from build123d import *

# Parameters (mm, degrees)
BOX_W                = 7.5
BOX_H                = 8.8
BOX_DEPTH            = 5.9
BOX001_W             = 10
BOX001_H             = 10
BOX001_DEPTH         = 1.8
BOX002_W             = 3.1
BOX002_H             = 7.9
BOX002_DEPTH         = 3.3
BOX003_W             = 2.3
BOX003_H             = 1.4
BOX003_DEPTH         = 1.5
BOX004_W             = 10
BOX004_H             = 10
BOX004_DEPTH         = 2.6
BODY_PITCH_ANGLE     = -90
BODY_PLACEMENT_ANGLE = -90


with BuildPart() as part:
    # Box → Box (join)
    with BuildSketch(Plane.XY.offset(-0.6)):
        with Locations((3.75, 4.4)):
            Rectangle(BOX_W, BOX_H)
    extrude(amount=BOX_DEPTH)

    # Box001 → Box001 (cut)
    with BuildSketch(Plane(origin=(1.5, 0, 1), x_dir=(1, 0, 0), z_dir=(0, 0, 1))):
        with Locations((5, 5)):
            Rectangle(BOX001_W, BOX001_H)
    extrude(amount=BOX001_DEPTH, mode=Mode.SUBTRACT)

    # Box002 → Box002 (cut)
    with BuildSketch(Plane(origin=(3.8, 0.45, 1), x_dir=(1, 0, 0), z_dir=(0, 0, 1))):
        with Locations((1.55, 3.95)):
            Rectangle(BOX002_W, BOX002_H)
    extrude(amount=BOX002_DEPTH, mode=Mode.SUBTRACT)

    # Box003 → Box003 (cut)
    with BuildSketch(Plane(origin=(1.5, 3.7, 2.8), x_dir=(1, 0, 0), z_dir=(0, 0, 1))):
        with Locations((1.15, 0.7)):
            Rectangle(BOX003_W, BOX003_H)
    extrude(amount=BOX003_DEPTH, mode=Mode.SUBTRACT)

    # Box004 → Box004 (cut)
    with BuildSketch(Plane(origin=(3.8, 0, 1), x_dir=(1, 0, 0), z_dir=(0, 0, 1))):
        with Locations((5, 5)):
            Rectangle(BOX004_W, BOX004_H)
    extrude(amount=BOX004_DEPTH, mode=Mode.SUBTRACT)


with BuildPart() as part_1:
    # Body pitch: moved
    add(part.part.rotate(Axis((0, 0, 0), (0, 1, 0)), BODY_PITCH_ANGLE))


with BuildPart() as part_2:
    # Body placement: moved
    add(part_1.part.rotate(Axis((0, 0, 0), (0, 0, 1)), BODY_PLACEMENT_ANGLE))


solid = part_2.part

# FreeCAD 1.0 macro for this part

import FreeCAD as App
import Part
import Sketcher
Q = App.Units.Quantity


def add_polygon(sketch, points):
    """Adds a closed chain of lines whose ends are joined by coincident constraints."""
    first, n = sketch.GeometryCount, len(points)
    for a, b in zip(points, points[1:] + points[:1]):
        sketch.addGeometry(Part.LineSegment(App.Vector(*a, 0), App.Vector(*b, 0)), False)
    for i in range(n):
        sketch.addConstraint(Sketcher.Constraint("Coincident", first + i, 2, first + (i + 1) % n, 1))

doc = App.newDocument("Part")
params = doc.addObject("Spreadsheet::Sheet", "Params")
for row, (alias, value) in enumerate([
    ("sketch1_width", "7.5 mm"),
    ("sketch1_height", "8.8 mm"),
    ("pad1_length", "5.9 mm"),
    ("sketch2_width", "10 mm"),
    ("pocket1_length", "1.8 mm"),
    ("sketch3_width", "3.1 mm"),
    ("sketch3_height", "7.9 mm"),
    ("pocket2_length", "3.3 mm"),
    ("sketch4_width", "2.3 mm"),
    ("sketch4_height", "1.4 mm"),
    ("pocket3_length", "1.5 mm"),
    ("sketch5_width", "10 mm"),
    ("pocket4_length", "2.6 mm"),
], start=1):
    params.set(f"A{row}", alias)
    params.set(f"B{row}", "=" + value)
    params.setAlias(f"B{row}", alias)

body = doc.addObject("PartDesign::Body", "Body")

sketch1 = body.newObject("Sketcher::SketchObject", "Sketch")
sketch1.AttachmentSupport = (doc.getObject("XY_Plane"), [""])
sketch1.MapMode = "FlatFace"
sketch1.AttachmentOffset = App.Placement(App.Vector(0, 0, -0.6), App.Rotation())
add_polygon(sketch1, [(0, 9), (0, 0), (8, 0), (8, 9)])
sketch1.addConstraint(Sketcher.Constraint("Vertical", 0))
sketch1.addConstraint(Sketcher.Constraint("Horizontal", 1))
sketch1.addConstraint(Sketcher.Constraint("Vertical", 2))
sketch1.addConstraint(Sketcher.Constraint("Horizontal", 3))
sketch1.addConstraint(Sketcher.Constraint("Coincident", 0, 2, -1, 1))
sketch1.addConstraint(Sketcher.Constraint("DistanceX", 1, 1, 1, 2, Q("7.5 mm")))
sketch1.addConstraint(Sketcher.Constraint("DistanceY", 0, 2, 0, 1, Q("8.8 mm")))
sketch1.setExpression("Constraints[9]", "Params.sketch1_width")
sketch1.setExpression("Constraints[10]", "Params.sketch1_height")
pad1 = body.newObject("PartDesign::Pad", "Pad")
pad1.Profile = sketch1
pad1.setExpression("Length", "Params.pad1_length")

sketch2 = body.newObject("Sketcher::SketchObject", "Sketch001")
sketch2.AttachmentSupport = (doc.getObject("XY_Plane"), [""])
sketch2.MapMode = "FlatFace"
sketch2.AttachmentOffset = App.Placement(App.Vector(0, 0, 1), App.Rotation())
add_polygon(sketch2, [(2, 10), (2, 0), (12, 0), (12, 10)])
sketch2.addConstraint(Sketcher.Constraint("Vertical", 0))
sketch2.addConstraint(Sketcher.Constraint("Horizontal", 1))
sketch2.addConstraint(Sketcher.Constraint("Vertical", 2))
sketch2.addConstraint(Sketcher.Constraint("Horizontal", 3))
sketch2.addConstraint(Sketcher.Constraint("PointOnObject", 0, 2, -1))
sketch2.addConstraint(Sketcher.Constraint("Equal", 3, 0))
sketch2.addConstraint(Sketcher.Constraint("DistanceX", 1, 1, 1, 2, Q("10 mm")))
sketch2.addConstraint(Sketcher.Constraint("DistanceX", -1, 1, 0, 2, Q("1.5 mm")))
sketch2.setExpression("Constraints[10]", "Params.sketch2_width")
pocket1 = body.newObject("PartDesign::Pocket", "Pocket")
pocket1.Profile = sketch2
pocket1.setExpression("Length", "Params.pocket1_length")
pocket1.Reversed = True

sketch3 = body.newObject("Sketcher::SketchObject", "Sketch002")
sketch3.AttachmentSupport = (doc.getObject("XY_Plane"), [""])
sketch3.MapMode = "FlatFace"
sketch3.AttachmentOffset = App.Placement(App.Vector(0, 0, 1), App.Rotation())
add_polygon(sketch3, [(3.8, 8.3), (3.8, 0.5), (6.9, 0.5), (6.9, 8.3)])
sketch3.addConstraint(Sketcher.Constraint("Vertical", 0))
sketch3.addConstraint(Sketcher.Constraint("Horizontal", 1))
sketch3.addConstraint(Sketcher.Constraint("Vertical", 2))
sketch3.addConstraint(Sketcher.Constraint("Horizontal", 3))
sketch3.addConstraint(Sketcher.Constraint("DistanceX", 1, 1, 1, 2, Q("3.1 mm")))
sketch3.addConstraint(Sketcher.Constraint("DistanceY", 0, 2, 0, 1, Q("7.9 mm")))
sketch3.addConstraint(Sketcher.Constraint("DistanceX", -1, 1, 0, 2, Q("3.8 mm")))
sketch3.addConstraint(Sketcher.Constraint("DistanceY", -1, 1, 0, 2, Q("0.45 mm")))
sketch3.setExpression("Constraints[8]", "Params.sketch3_width")
sketch3.setExpression("Constraints[9]", "Params.sketch3_height")
pocket2 = body.newObject("PartDesign::Pocket", "Pocket001")
pocket2.Profile = sketch3
pocket2.setExpression("Length", "Params.pocket2_length")
pocket2.Reversed = True

sketch4 = body.newObject("Sketcher::SketchObject", "Sketch003")
sketch4.AttachmentSupport = (doc.getObject("XY_Plane"), [""])
sketch4.MapMode = "FlatFace"
sketch4.AttachmentOffset = App.Placement(App.Vector(0, 0, 2.8), App.Rotation())
add_polygon(sketch4, [(1.5, 5.1), (1.5, 3.7), (3.8, 3.7), (3.8, 5.1)])
sketch4.addConstraint(Sketcher.Constraint("Vertical", 0))
sketch4.addConstraint(Sketcher.Constraint("Horizontal", 1))
sketch4.addConstraint(Sketcher.Constraint("Vertical", 2))
sketch4.addConstraint(Sketcher.Constraint("Horizontal", 3))
sketch4.addConstraint(Sketcher.Constraint("DistanceX", 1, 1, 1, 2, Q("2.3 mm")))
sketch4.addConstraint(Sketcher.Constraint("DistanceY", 0, 2, 0, 1, Q("1.4 mm")))
sketch4.addConstraint(Sketcher.Constraint("DistanceX", -1, 1, 0, 2, Q("1.5 mm")))
sketch4.addConstraint(Sketcher.Constraint("DistanceY", -1, 1, 0, 2, Q("3.7 mm")))
sketch4.setExpression("Constraints[8]", "Params.sketch4_width")
sketch4.setExpression("Constraints[9]", "Params.sketch4_height")
pocket3 = body.newObject("PartDesign::Pocket", "Pocket002")
pocket3.Profile = sketch4
pocket3.setExpression("Length", "Params.pocket3_length")
pocket3.Reversed = True

sketch5 = body.newObject("Sketcher::SketchObject", "Sketch004")
sketch5.AttachmentSupport = (doc.getObject("XY_Plane"), [""])
sketch5.MapMode = "FlatFace"
sketch5.AttachmentOffset = App.Placement(App.Vector(0, 0, 1), App.Rotation())
add_polygon(sketch5, [(4, 10), (4, 0), (14, 0), (14, 10)])
sketch5.addConstraint(Sketcher.Constraint("Vertical", 0))
sketch5.addConstraint(Sketcher.Constraint("Horizontal", 1))
sketch5.addConstraint(Sketcher.Constraint("Vertical", 2))
sketch5.addConstraint(Sketcher.Constraint("Horizontal", 3))
sketch5.addConstraint(Sketcher.Constraint("PointOnObject", 0, 2, -1))
sketch5.addConstraint(Sketcher.Constraint("Equal", 3, 0))
sketch5.addConstraint(Sketcher.Constraint("DistanceX", 1, 1, 1, 2, Q("10 mm")))
sketch5.addConstraint(Sketcher.Constraint("DistanceX", -1, 1, 0, 2, Q("3.8 mm")))
sketch5.setExpression("Constraints[10]", "Params.sketch5_width")
pocket4 = body.newObject("PartDesign::Pocket", "Pocket003")
pocket4.Profile = sketch5
pocket4.setExpression("Length", "Params.pocket4_length")
pocket4.Reversed = True
body2 = doc.addObject("PartDesign::Body", "Body001")
doc.recompute()

body.Placement = App.Placement(App.Vector(0, 0, 0), App.Rotation(App.Vector(0, 1, 0), 270))
boolean = body2.newObject("PartDesign::Boolean", "Boolean")
boolean.Type = "Fuse"
boolean.addObjects([body])
body3 = doc.addObject("PartDesign::Body", "Body002")
doc.recompute()

body2.Placement = App.Placement(App.Vector(0, 0, 0), App.Rotation(App.Vector(0, 0, 1), 270))
boolean2 = body3.newObject("PartDesign::Boolean", "Boolean001")
boolean2.Type = "Fuse"
boolean2.addObjects([body2])

doc.recompute()
